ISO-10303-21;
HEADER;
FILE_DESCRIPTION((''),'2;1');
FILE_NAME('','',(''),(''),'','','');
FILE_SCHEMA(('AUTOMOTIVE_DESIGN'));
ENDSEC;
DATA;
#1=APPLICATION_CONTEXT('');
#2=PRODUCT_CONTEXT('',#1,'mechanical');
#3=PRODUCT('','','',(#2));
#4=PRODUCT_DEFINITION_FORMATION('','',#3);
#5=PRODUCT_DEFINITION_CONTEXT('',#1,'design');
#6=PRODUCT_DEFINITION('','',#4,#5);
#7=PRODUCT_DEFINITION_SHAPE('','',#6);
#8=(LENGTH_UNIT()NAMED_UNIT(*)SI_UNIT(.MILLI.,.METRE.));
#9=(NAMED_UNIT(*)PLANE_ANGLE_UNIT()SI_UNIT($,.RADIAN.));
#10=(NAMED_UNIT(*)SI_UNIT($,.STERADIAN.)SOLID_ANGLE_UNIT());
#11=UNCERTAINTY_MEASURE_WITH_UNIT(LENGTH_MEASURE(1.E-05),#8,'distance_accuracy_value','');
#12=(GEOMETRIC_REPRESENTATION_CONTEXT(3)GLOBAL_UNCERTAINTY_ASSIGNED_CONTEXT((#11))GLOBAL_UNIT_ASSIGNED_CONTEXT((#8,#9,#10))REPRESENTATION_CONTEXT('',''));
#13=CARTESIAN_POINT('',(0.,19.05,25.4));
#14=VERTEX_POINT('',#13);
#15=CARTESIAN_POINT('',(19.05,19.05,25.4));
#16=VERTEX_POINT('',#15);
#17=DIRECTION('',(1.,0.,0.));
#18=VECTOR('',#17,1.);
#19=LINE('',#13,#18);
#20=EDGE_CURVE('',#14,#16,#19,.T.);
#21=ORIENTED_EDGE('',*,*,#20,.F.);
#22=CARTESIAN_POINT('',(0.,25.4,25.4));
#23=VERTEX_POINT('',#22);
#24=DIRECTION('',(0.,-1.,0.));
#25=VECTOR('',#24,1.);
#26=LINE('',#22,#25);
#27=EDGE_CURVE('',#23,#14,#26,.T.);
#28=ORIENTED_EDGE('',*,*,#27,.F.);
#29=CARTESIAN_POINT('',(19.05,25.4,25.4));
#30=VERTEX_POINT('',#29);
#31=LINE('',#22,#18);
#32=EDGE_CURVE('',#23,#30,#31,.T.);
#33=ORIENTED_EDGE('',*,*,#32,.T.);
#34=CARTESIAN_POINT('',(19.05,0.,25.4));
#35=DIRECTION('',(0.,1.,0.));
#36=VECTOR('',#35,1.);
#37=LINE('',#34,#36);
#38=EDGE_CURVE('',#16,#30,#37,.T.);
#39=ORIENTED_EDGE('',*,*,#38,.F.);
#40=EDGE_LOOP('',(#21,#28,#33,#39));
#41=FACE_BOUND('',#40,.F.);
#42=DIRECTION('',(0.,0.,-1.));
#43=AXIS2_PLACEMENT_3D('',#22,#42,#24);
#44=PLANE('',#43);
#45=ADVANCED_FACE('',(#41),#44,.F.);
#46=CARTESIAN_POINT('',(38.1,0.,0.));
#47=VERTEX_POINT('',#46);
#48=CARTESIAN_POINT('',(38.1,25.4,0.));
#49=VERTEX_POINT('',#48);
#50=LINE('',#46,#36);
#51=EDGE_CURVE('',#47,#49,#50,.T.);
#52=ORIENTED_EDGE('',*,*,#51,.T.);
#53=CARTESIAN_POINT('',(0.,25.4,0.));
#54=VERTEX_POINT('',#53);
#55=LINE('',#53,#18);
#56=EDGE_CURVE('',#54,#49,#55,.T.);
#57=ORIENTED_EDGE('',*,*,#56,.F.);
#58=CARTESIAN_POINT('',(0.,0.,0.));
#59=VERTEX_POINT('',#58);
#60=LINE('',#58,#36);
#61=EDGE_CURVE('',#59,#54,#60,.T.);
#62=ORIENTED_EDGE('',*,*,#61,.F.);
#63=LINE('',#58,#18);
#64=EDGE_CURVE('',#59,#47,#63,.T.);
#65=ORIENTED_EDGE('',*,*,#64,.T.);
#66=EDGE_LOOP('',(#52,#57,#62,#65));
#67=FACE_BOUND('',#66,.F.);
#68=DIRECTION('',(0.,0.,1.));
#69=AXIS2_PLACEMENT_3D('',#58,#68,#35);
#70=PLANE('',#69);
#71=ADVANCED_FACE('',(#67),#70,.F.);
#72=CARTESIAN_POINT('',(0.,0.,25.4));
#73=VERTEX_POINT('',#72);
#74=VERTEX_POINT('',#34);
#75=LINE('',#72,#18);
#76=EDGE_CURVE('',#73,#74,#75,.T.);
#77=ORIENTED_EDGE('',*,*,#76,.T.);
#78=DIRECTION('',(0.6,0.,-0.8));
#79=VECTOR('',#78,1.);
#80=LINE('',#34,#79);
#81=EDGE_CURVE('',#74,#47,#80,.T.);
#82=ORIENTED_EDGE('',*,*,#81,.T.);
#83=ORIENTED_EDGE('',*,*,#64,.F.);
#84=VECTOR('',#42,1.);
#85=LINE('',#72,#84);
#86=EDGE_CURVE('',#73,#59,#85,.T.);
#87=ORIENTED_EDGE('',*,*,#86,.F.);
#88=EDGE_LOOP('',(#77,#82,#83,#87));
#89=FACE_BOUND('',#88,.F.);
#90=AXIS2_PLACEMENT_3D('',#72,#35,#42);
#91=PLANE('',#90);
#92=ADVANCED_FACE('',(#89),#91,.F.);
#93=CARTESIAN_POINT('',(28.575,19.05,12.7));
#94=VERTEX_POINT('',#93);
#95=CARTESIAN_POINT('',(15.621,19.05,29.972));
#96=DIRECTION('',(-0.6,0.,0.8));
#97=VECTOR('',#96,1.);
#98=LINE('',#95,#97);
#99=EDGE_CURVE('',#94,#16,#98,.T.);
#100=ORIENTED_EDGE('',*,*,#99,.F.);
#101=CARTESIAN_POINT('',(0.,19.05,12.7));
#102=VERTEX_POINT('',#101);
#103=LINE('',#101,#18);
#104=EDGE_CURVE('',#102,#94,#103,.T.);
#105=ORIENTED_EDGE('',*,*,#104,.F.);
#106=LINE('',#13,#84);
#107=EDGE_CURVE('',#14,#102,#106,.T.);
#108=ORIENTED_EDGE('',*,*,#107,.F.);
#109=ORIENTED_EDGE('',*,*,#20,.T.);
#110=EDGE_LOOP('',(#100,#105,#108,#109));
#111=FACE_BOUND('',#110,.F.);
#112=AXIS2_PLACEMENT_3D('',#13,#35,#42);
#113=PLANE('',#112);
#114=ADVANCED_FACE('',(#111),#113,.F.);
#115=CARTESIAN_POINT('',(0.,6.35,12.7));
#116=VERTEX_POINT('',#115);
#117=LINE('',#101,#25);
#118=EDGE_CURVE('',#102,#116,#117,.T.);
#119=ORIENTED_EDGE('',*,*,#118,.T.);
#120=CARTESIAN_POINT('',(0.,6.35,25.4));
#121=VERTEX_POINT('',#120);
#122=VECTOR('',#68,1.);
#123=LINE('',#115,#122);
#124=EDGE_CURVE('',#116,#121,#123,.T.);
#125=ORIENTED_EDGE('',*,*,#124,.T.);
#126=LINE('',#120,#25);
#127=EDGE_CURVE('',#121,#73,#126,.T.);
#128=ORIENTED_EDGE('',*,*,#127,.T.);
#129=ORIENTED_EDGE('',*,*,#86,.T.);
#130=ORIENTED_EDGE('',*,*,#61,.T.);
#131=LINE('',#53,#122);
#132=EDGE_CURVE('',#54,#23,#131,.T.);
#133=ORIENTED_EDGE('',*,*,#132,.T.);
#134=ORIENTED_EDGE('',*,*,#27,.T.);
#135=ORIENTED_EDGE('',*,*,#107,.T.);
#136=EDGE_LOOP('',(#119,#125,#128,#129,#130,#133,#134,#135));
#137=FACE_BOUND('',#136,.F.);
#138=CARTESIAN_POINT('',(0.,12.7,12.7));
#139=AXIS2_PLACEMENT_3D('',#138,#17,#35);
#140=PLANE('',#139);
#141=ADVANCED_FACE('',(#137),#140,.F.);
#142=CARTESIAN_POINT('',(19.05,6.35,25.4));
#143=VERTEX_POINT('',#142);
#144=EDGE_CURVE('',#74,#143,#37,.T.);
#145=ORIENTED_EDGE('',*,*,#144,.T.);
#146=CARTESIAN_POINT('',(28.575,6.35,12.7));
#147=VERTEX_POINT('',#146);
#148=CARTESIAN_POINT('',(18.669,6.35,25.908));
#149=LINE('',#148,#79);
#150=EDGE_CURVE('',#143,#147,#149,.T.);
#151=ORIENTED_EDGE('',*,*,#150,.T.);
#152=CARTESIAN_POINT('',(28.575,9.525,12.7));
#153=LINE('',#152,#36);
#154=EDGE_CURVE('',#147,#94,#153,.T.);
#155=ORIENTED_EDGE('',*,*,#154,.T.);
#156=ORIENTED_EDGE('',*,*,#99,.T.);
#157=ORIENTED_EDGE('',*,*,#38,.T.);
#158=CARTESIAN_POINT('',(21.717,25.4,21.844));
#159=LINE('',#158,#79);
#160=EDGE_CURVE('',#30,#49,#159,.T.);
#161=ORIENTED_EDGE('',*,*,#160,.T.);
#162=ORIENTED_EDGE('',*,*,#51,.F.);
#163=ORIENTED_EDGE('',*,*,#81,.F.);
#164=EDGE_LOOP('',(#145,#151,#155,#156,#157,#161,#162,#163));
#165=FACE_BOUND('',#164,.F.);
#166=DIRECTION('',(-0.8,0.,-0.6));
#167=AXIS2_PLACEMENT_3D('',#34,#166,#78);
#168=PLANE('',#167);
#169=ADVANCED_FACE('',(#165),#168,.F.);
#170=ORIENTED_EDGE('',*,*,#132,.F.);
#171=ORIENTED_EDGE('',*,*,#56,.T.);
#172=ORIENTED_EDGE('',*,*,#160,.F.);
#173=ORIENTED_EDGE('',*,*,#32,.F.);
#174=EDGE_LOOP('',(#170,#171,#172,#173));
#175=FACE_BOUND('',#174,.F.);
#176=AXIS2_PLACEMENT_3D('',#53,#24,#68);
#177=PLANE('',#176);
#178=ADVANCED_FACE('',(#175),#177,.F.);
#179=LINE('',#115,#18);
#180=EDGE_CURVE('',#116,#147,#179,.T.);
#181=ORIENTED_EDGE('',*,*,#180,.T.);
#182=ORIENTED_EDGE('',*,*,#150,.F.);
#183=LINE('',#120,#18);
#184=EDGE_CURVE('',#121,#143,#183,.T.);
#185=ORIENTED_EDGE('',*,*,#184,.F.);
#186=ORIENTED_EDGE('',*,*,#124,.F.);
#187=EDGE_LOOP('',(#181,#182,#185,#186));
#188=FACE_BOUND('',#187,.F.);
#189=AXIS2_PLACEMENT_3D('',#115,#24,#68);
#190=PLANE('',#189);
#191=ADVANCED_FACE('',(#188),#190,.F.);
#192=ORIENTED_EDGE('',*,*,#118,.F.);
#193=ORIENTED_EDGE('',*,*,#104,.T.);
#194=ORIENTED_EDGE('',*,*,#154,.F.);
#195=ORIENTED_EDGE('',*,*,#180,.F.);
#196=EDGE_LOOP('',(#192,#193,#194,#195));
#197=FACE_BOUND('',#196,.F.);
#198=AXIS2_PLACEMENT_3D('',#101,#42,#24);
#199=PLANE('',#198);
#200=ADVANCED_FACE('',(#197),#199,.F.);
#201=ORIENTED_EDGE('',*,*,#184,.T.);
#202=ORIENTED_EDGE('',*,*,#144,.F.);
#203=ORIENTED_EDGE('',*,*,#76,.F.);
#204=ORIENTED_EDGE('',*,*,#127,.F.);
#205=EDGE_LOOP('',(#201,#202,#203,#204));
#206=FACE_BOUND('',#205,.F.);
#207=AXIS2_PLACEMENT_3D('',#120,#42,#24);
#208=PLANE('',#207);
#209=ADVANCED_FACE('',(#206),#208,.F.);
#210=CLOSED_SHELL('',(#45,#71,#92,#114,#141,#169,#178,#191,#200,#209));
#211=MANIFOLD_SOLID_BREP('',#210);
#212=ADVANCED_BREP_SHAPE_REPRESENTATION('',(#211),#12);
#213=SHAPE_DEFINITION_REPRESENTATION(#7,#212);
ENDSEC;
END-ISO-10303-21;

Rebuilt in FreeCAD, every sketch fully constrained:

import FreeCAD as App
import Part
import Sketcher
from FreeCAD import Vector
Q = App.Units.Quantity


def add_polygon(sketch, points):
    """Adds a closed chain of lines whose ends are joined by coincident constraints."""
    first, n = sketch.GeometryCount, len(points)
    for a, b in zip(points, points[1:] + points[:1]):
        sketch.addGeometry(Part.LineSegment(App.Vector(*a, 0), App.Vector(*b, 0)), False)
    for i in range(n):
        sketch.addConstraint(Sketcher.Constraint("Coincident", first + i, 2, first + (i + 1) % n, 1))

doc = App.newDocument("Part")
body = doc.addObject("PartDesign::Body", "Body")

sketch1 = doc.addObject("Sketcher::SketchObject", "Sketch")
body.addObject(sketch1)
sketch1.AttachmentSupport = (doc.YZ_Plane, [""])
sketch1.MapMode = "FlatFace"
add_polygon(sketch1, [(0, 25), (0, 0), (25, 0), (25, 25), (19, 25), (19, 13), (6, 13), (6, 25)])
sketch1.addConstraint([
    Sketcher.Constraint("Vertical", 0),
    Sketcher.Constraint("Horizontal", 1),
    Sketcher.Constraint("Vertical", 2),
    Sketcher.Constraint("Horizontal", 3),
    Sketcher.Constraint("Vertical", 4),
    Sketcher.Constraint("Horizontal", 5),
    Sketcher.Constraint("Vertical", 6),
    Sketcher.Constraint("Horizontal", 7),
    Sketcher.Constraint("Coincident", 0, 2, -1, 1),
    Sketcher.Constraint("Horizontal", 3, 2, 6, 2),
    Sketcher.Constraint("Equal", 3, 7),
    Sketcher.Constraint("Equal", 1, 0),
    Sketcher.Constraint("Equal", 5, 4),
    Sketcher.Constraint("DistanceX", 1, 1, 1, 2, Q("1 in")),
    Sketcher.Constraint("DistanceX", 5, 2, 5, 1, Q("0.5 in")),
])
pad1 = doc.addObject("PartDesign::Pad", "Pad")
body.addObject(pad1)
pad1.Profile = sketch1
pad1.Length = Q("1.5 in")

sketch2 = doc.addObject("Sketcher::SketchObject", "Sketch001")
body.addObject(sketch2)
sketch2.AttachmentSupport = (doc.XZ_Plane, [""])
sketch2.MapMode = "FlatFace"
add_polygon(sketch2, [(19, 25), (38, 0), (38, 25)])
sketch2.addConstraint([
    Sketcher.Constraint("Vertical", 1),
    Sketcher.Constraint("Horizontal", 2),
    Sketcher.Constraint("PointOnObject", 0, 2, -1),
    Sketcher.Constraint("DistanceY", 1, 1, 1, 2, Q("1 in")),
    Sketcher.Constraint("DistanceX", 2, 2, 2, 1, Q("0.75 in")),
    Sketcher.Constraint("DistanceX", -1, 1, 0, 2, Q("1.5 in")),
])
pocket1 = doc.addObject("PartDesign::Pocket", "Pocket")
body.addObject(pocket1)
pocket1.Profile = sketch2
pocket1.Type = "ThroughAll"

doc.recompute()
